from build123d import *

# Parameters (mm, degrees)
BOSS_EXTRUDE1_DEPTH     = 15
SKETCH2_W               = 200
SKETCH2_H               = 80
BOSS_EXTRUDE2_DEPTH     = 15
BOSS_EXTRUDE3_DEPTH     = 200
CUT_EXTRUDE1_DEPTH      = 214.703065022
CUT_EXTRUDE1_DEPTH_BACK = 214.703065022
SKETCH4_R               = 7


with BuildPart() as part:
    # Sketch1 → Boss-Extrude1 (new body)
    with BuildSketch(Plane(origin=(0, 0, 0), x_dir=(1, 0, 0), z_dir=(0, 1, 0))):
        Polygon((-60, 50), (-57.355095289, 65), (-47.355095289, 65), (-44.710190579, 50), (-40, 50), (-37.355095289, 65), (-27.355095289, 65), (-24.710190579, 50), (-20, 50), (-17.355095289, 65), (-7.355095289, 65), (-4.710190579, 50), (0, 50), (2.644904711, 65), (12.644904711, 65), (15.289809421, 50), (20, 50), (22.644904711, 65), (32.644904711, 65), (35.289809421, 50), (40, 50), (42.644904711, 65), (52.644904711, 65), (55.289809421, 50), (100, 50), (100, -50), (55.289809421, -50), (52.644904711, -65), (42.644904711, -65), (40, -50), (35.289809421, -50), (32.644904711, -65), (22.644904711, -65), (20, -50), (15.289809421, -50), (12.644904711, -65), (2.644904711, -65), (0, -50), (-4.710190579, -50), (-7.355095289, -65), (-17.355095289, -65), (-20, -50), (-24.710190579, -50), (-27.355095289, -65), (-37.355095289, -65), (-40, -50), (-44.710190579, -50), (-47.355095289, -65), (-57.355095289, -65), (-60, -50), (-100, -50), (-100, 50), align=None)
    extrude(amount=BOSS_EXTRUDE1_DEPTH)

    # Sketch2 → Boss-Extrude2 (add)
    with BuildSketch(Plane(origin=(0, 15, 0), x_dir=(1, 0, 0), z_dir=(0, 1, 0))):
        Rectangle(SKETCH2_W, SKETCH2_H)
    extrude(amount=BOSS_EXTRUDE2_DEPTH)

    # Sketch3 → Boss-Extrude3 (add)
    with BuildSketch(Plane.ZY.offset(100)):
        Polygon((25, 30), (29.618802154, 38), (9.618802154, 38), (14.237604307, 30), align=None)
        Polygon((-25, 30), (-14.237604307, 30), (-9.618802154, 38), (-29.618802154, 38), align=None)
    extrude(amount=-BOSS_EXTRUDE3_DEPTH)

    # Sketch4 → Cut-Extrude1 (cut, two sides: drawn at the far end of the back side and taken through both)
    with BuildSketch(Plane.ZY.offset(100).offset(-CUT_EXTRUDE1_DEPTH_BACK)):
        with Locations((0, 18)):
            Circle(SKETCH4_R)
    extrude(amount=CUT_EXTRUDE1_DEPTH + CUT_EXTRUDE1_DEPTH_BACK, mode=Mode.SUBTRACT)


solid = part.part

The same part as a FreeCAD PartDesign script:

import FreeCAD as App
import Part
import Sketcher
from FreeCAD import Vector
Q = App.Units.Quantity


def add_polygon(sketch, points):
    """Adds a closed chain of lines whose ends are joined by coincident constraints."""
    first, n = sketch.GeometryCount, len(points)
    for a, b in zip(points, points[1:] + points[:1]):
        sketch.addGeometry(Part.LineSegment(App.Vector(*a, 0), App.Vector(*b, 0)), False)
    for i in range(n):
        sketch.addConstraint(Sketcher.Constraint("Coincident", first + i, 2, first + (i + 1) % n, 1))

doc = App.newDocument("Part")
params = doc.addObject("Spreadsheet::Sheet", "Params")
for row, (alias, value) in enumerate([
    ("sketch1_width", "40 mm"),
    ("sketch1_width2", "10 mm"),
    ("sketch1_height", "100 mm"),
    ("pad1_length", "15 mm"),
    ("sketch2_width", "200 mm"),
    ("sketch2_height", "80 mm"),
    ("pad2_length", "15 mm"),
    ("sketch3_height", "20 mm"),
    ("pad3_length", "200 mm"),
    ("sketch4_diameter", "14 mm"),
], start=1):
    params.set(f"A{row}", alias)
    params.set(f"B{row}", "=" + value)
    params.setAlias(f"B{row}", alias)

body = doc.addObject("PartDesign::Body", "Body")

sketch1 = body.newObject("Sketcher::SketchObject", "Sketch")
sketch1.AttachmentSupport = (doc.getObject("XZ_Plane"), [""])
sketch1.MapMode = "FlatFace"
add_polygon(sketch1, [(-57.4, -65), (-60, -50), (-100, -50), (-100, 50), (-60, 50), (-57.4, 65), (-47.4, 65), (-44.7, 50), (-40, 50), (-37.4, 65), (-27.4, 65), (-24.7, 50), (-20, 50), (-17.4, 65), (-7.4, 65), (-4.7, 50), (0, 50), (2.6, 65), (12.6, 65), (15.3, 50), (20, 50), (22.6, 65), (32.6, 65), (35.3, 50), (40, 50), (42.6, 65), (52.6, 65), (55.3, 50), (100, 50), (100, -50), (55.3, -50), (52.6, -65), (42.6, -65), (40, -50), (35.3, -50), (32.6, -65), (22.6, -65), (20, -50), (15.3, -50), (12.6, -65), (2.6, -65), (0, -50), (-4.7, -50), (-7.4, -65), (-17.4, -65), (-20, -50), (-24.7, -50), (-27.4, -65), (-37.4, -65), (-40, -50), (-44.7, -50), (-47.4, -65)])
sketch1.addConstraint([
    Sketcher.Constraint("Horizontal", 1),
    Sketcher.Constraint("Vertical", 2),
    Sketcher.Constraint("Horizontal", 3),
    Sketcher.Constraint("Horizontal", 5),
    Sketcher.Constraint("Horizontal", 7),
    Sketcher.Constraint("Horizontal", 9),
    Sketcher.Constraint("Horizontal", 11),
    Sketcher.Constraint("Horizontal", 13),
    Sketcher.Constraint("Horizontal", 15),
    Sketcher.Constraint("Horizontal", 17),
    Sketcher.Constraint("Horizontal", 19),
    Sketcher.Constraint("Horizontal", 21),
    Sketcher.Constraint("Horizontal", 23),
    Sketcher.Constraint("Horizontal", 25),
    Sketcher.Constraint("Horizontal", 27),
    Sketcher.Constraint("Vertical", 28),
    Sketcher.Constraint("Horizontal", 29),
    Sketcher.Constraint("Horizontal", 31),
    Sketcher.Constraint("Horizontal", 33),
    Sketcher.Constraint("Horizontal", 35),
    Sketcher.Constraint("Horizontal", 37),
    Sketcher.Constraint("Horizontal", 39),
    Sketcher.Constraint("Horizontal", 41),
    Sketcher.Constraint("Horizontal", 43),
    Sketcher.Constraint("Horizontal", 45),
    Sketcher.Constraint("Horizontal", 47),
    Sketcher.Constraint("Horizontal", 49),
    Sketcher.Constraint("Horizontal", 51),
    Sketcher.Constraint("Symmetric", 1, 2, 27, 2, -1, 1),
    Sketcher.Constraint("Symmetric", 7, 2, 32, 2, -1, 1),
    Sketcher.Constraint("Symmetric", 11, 2, 36, 2, -1, 1),
    Sketcher.Constraint("Symmetric", 15, 2, 40, 2, -1, 1),
    Sketcher.Constraint("Symmetric", 19, 2, 44, 2, -1, 1),
    Sketcher.Constraint("Symmetric", 23, 2, 48, 2, -1, 1),
    Sketcher.Constraint("Symmetric", 11, 2, 19, 2, -2),
    Sketcher.Constraint("Symmetric", 7, 2, 23, 2, -2),
    Sketcher.Constraint("Symmetric", 0, 2, 3, 2, -1),
    Sketcher.Constraint("Symmetric", 26, 2, 29, 2, -1),
    Sketcher.Constraint("Symmetric", 25, 2, 30, 2, -1),
    Sketcher.Constraint("Symmetric", 21, 2, 34, 2, -1),
    Sketcher.Constraint("Symmetric", 17, 2, 38, 2, -1),
    Sketcher.Constraint("Symmetric", 13, 2, 42, 2, -1),
    Sketcher.Constraint("Symmetric", 9, 2, 46, 2, -1),
    Sketcher.Constraint("Symmetric", 5, 2, 50, 2, -1),
    Sketcher.Constraint("PointOnObject", 15, 2, -2),
    Sketcher.Constraint("Parallel", 0, 6),
    Sketcher.Constraint("Parallel", 4, 8),
    Sketcher.Constraint("Parallel", 6, 10),
    Sketcher.Constraint("Parallel", 8, 12),
    Sketcher.Constraint("Parallel", 10, 14),
    Sketcher.Constraint("Parallel", 12, 16),
    Sketcher.Constraint("Parallel", 14, 18),
    Sketcher.Constraint("Parallel", 16, 20),
    Sketcher.Constraint("Parallel", 18, 22),
    Sketcher.Constraint("Parallel", 20, 24),
    Sketcher.Constraint("Parallel", 22, 26),
    Sketcher.Constraint("Parallel", 24, 30),
    Sketcher.Constraint("Parallel", 26, 32),
    Sketcher.Constraint("Parallel", 30, 34),
    Sketcher.Constraint("Parallel", 32, 36),
    Sketcher.Constraint("Parallel", 34, 38),
    Sketcher.Constraint("Parallel", 36, 40),
    Sketcher.Constraint("Parallel", 38, 42),
    Sketcher.Constraint("Parallel", 40, 44),
    Sketcher.Constraint("Parallel", 42, 46),
    Sketcher.Constraint("Parallel", 44, 48),
    Sketcher.Constraint("Parallel", 46, 50),
    Sketcher.Constraint("Horizontal", 3, 2, 6, 2),
    Sketcher.Constraint("Horizontal", 5, 2, 8, 2),
    Sketcher.Constraint("Horizontal", 7, 2, 10, 2),
    Sketcher.Constraint("Horizontal", 9, 2, 12, 2),
    Sketcher.Constraint("Horizontal", 11, 2, 14, 2),
    Sketcher.Constraint("Horizontal", 13, 2, 16, 2),
    Sketcher.Constraint("Horizontal", 17, 2, 20, 2),
    Sketcher.Constraint("Horizontal", 21, 2, 24, 2),
    Sketcher.Constraint("Equal", 5, 9),
    Sketcher.Constraint("Equal", 7, 11),
    Sketcher.Constraint("Equal", 9, 13),
    Sketcher.Constraint("Equal", 11, 15),
    Sketcher.Constraint("Equal", 13, 17),
    Sketcher.Constraint("Equal", 17, 21),
    Sketcher.Constraint("Equal", 21, 25),
    Sketcher.Constraint("DistanceX", 1, 2, 1, 1, 40.0),
    Sketcher.Constraint("DistanceX", 5, 1, 5, 2, 10.0),
    Sketcher.Constraint("DistanceY", 2, 1, 2, 2, 100.0),
    Sketcher.Constraint("Angle", 0, Q("100 deg")),
    Sketcher.Constraint("DistanceX", 0, 2, -1, 1, 60.0),
    Sketcher.Constraint("DistanceY", -1, 1, 4, 2, 65.0),
])
sketch1.setExpression("Constraints[134]", "Params.sketch1_width")
sketch1.setExpression("Constraints[135]", "Params.sketch1_width2")
sketch1.setExpression("Constraints[136]", "Params.sketch1_height")
pad1 = body.newObject("PartDesign::Pad", "Pad")
pad1.Profile = sketch1
pad1.setExpression("Length", "Params.pad1_length")
pad1.Reversed = True

sketch2 = body.newObject("Sketcher::SketchObject", "Sketch001")
sketch2.AttachmentSupport = (doc.getObject("XZ_Plane"), [""])
sketch2.MapMode = "FlatFace"
sketch2.AttachmentOffset = App.Placement(Vector(0, 0, -15), App.Rotation())
add_polygon(sketch2, [(-100, -40), (-100, 40), (100, 40), (100, -40)])
sketch2.addConstraint([
    Sketcher.Constraint("Vertical", 0),
    Sketcher.Constraint("Horizontal", 1),
    Sketcher.Constraint("Vertical", 2),
    Sketcher.Constraint("Horizontal", 3),
    Sketcher.Constraint("Symmetric", 0, 2, 2, 2, -1, 1),
    Sketcher.Constraint("DistanceX", 1, 1, 1, 2, 200.0),
    Sketcher.Constraint("DistanceY", 0, 1, 0, 2, 80.0),
])
sketch2.setExpression("Constraints[9]", "Params.sketch2_width")
sketch2.setExpression("Constraints[10]", "Params.sketch2_height")
pad2 = body.newObject("PartDesign::Pad", "Pad001")
pad2.Profile = sketch2
pad2.setExpression("Length", "Params.pad2_length")
pad2.Reversed = True

sketch3 = body.newObject("Sketcher::SketchObject", "Sketch002")
sketch3.AttachmentSupport = (doc.getObject("YZ_Plane"), [""])
sketch3.MapMode = "FlatFace"
sketch3.AttachmentOffset = App.Placement(Vector(0, 0, -100), App.Rotation())
add_polygon(sketch3, [(30, 25), (38, 30), (38, 10), (30, 14)])
add_polygon(sketch3, [(30, -25), (30, -14), (38, -10), (38, -30)])
sketch3.addConstraint([
    Sketcher.Constraint("Vertical", 1),
    Sketcher.Constraint("Vertical", 3),
    Sketcher.Constraint("Vertical", 4),
    Sketcher.Constraint("Vertical", 6),
    Sketcher.Constraint("Symmetric", 2, 2, 4, 2, -1),
    Sketcher.Constraint("Symmetric", 1, 2, 5, 2, -1),
    Sketcher.Constraint("Parallel", 0, 5),
    Sketcher.Constraint("Parallel", 2, 7),
    Sketcher.Constraint("Equal", 3, 4),
    Sketcher.Constraint("DistanceY", 1, 2, 1, 1, 20.0),
    Sketcher.Constraint("Angle", 0, Q("30 deg")),
    Sketcher.Constraint("DistanceX", -1, 1, 0, 2, 38.0),
    Sketcher.Constraint("DistanceX", -1, 1, 2, 2, 30.0),
    Sketcher.Constraint("DistanceY", -1, 1, 3, 2, 25.0),
])
sketch3.setExpression("Constraints[17]", "Params.sketch3_height")
pad3 = body.newObject("PartDesign::Pad", "Pad002")
pad3.Profile = sketch3
pad3.setExpression("Length", "Params.pad3_length")

sketch4 = body.newObject("Sketcher::SketchObject", "Sketch003")
sketch4.AttachmentSupport = (doc.getObject("YZ_Plane"), [""])
sketch4.MapMode = "FlatFace"
sketch4.AttachmentOffset = App.Placement(Vector(0, 0, -100), App.Rotation())
sketch4.addGeometry(Part.Circle(Vector(18, 0, 0), Vector(0, 0, 1), 7), False)
sketch4.addConstraint([
    Sketcher.Constraint("PointOnObject", 0, 3, -1),
    Sketcher.Constraint("Diameter", 0, 14.0),
    Sketcher.Constraint("DistanceX", -1, 1, 0, 3, 18.0),
])
sketch4.setExpression("Constraints[1]", "Params.sketch4_diameter")
pocket1 = body.newObject("PartDesign::Pocket", "Pocket")
pocket1.Profile = sketch4
pocket1.Type = "ThroughAll"
pocket1.Midplane = True

doc.recompute()
